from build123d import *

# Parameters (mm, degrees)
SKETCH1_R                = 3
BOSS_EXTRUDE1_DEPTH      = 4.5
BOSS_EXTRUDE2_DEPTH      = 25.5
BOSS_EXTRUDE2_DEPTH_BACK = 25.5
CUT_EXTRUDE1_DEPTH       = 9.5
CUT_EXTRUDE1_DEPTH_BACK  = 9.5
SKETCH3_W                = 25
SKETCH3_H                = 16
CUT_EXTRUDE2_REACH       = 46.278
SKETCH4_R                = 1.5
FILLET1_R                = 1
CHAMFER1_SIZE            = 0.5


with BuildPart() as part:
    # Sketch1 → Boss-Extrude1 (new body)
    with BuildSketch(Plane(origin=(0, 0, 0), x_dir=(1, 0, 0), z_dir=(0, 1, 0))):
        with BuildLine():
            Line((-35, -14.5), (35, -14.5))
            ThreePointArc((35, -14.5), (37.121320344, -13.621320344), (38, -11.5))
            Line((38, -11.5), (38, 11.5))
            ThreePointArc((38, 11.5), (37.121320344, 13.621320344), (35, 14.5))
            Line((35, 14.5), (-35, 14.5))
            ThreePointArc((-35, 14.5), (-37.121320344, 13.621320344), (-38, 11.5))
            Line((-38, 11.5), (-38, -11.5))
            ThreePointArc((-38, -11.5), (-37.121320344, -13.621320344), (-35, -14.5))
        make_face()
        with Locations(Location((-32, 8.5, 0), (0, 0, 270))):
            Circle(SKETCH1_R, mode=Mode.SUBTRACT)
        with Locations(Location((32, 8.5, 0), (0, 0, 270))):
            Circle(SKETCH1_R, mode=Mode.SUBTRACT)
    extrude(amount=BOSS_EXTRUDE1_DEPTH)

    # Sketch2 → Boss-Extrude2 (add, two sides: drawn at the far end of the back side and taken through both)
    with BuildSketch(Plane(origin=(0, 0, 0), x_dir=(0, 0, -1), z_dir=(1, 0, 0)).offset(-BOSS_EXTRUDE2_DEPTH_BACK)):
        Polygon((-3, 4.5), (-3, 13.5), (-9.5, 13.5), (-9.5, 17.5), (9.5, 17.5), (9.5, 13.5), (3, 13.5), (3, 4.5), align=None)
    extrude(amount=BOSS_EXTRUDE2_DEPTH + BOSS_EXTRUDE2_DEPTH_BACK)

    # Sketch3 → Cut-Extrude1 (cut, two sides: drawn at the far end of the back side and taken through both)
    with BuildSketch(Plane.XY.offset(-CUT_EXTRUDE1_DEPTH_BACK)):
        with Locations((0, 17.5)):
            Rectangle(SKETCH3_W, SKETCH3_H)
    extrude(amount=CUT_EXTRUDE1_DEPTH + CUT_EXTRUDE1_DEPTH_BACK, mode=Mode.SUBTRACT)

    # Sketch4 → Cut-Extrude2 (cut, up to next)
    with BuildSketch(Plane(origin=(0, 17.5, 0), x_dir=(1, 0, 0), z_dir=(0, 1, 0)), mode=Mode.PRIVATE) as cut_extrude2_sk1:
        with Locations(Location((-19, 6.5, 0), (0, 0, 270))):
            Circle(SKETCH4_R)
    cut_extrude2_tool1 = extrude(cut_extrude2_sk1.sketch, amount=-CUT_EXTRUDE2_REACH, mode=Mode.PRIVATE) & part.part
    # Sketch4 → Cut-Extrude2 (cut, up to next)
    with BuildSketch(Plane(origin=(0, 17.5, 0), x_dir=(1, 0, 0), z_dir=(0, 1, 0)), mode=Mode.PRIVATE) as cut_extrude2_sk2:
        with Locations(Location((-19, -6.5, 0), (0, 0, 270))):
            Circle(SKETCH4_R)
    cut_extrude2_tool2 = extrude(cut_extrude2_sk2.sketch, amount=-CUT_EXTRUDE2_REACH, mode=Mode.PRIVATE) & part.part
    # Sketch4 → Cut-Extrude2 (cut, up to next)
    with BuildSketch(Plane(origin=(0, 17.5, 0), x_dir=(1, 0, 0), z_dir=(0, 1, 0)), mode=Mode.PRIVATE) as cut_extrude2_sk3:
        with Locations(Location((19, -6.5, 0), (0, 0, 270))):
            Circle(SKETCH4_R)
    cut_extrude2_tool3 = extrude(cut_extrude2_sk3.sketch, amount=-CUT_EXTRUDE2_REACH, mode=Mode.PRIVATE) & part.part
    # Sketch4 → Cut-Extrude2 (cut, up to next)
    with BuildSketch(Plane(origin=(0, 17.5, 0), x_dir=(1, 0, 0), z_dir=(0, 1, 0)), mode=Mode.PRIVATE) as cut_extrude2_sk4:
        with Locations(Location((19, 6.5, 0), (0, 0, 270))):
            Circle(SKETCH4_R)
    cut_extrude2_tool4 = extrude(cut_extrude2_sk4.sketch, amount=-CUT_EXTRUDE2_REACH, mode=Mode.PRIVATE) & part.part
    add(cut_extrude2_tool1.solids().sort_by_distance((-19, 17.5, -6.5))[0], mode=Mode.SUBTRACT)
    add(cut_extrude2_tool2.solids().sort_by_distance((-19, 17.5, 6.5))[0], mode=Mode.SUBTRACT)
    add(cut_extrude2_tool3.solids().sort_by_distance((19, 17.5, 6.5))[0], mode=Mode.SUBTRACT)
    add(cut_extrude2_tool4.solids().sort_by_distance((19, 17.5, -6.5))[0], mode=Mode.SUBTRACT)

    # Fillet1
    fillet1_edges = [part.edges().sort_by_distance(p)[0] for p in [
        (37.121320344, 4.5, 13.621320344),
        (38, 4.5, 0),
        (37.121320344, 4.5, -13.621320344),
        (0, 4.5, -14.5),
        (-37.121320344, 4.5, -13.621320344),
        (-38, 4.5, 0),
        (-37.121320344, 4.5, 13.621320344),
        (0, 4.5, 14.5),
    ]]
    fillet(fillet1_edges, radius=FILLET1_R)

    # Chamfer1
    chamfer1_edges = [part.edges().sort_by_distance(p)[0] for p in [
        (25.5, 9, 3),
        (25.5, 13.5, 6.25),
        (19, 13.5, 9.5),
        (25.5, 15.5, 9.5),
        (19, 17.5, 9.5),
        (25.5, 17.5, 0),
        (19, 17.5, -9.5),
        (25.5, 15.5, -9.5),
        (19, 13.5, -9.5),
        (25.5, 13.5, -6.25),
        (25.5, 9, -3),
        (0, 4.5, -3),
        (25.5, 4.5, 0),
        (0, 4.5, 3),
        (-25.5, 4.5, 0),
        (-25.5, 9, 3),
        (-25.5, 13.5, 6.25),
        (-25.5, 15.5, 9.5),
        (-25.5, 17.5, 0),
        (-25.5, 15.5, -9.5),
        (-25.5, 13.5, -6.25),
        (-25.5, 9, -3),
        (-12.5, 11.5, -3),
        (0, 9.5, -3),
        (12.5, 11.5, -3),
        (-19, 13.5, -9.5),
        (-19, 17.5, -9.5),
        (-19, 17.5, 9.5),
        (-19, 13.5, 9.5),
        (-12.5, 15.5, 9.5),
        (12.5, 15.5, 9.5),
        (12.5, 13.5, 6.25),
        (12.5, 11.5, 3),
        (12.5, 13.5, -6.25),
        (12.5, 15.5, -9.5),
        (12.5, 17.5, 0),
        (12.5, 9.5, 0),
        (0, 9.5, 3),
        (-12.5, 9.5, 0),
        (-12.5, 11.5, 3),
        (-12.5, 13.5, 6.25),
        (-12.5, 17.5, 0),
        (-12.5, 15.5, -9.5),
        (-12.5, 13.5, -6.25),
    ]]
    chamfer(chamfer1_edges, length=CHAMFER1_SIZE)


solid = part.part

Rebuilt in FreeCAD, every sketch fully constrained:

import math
import FreeCAD as App
import Part
import Sketcher
from FreeCAD import Vector


def edges_at(feature, points):
    """Names of the edges that pass closest to the given points."""
    edges = feature.Shape.Edges
    near = lambda p: min(range(len(edges)), key=lambda i: edges[i].distToShape(Part.Vertex(*p))[0])
    return sorted({f"Edge{near(p) + 1}" for p in points})


def add_polygon(sketch, points):
    """Adds a closed chain of lines whose ends are joined by coincident constraints."""
    first, n = sketch.GeometryCount, len(points)
    for a, b in zip(points, points[1:] + points[:1]):
        sketch.addGeometry(Part.LineSegment(App.Vector(*a, 0), App.Vector(*b, 0)), False)
    for i in range(n):
        sketch.addConstraint(Sketcher.Constraint("Coincident", first + i, 2, first + (i + 1) % n, 1))

doc = App.newDocument("Part")
body = doc.addObject("PartDesign::Body", "Body")

# Sketch on XZ plane
sketch1 = doc.addObject("Sketcher::SketchObject", "Sketch")
body.addObject(sketch1)
sketch1.AttachmentSupport = (doc.XZ_Plane, [""])
sketch1.MapMode = "FlatFace"
sketch1.addGeometry(Part.LineSegment(Vector(-35, 14.5, 0), Vector(35, 14.5, 0)), False)
sketch1.addGeometry(Part.ArcOfCircle(Part.Circle(Vector(35, 11.5, 0), Vector(0, 0, 1), 3), math.radians(0), math.radians(90)), False)
sketch1.addGeometry(Part.LineSegment(Vector(38, 11.5, 0), Vector(38, -11.5, 0)), False)
sketch1.addGeometry(Part.ArcOfCircle(Part.Circle(Vector(35, -11.5, 0), Vector(0, 0, 1), 3), math.radians(-90), math.radians(0)), False)
sketch1.addGeometry(Part.LineSegment(Vector(35, -14.5, 0), Vector(-35, -14.5, 0)), False)
sketch1.addGeometry(Part.ArcOfCircle(Part.Circle(Vector(-35, -11.5, 0), Vector(0, 0, 1), 3), math.radians(180), math.radians(270)), False)
sketch1.addGeometry(Part.LineSegment(Vector(-38, -11.5, 0), Vector(-38, 11.5, 0)), False)
sketch1.addGeometry(Part.ArcOfCircle(Part.Circle(Vector(-35, 11.5, 0), Vector(0, 0, 1), 3), math.radians(90), math.radians(180)), False)
sketch1.addGeometry(Part.Circle(Vector(-32, -8.5, 0), Vector(0, 0, 1), 3), False)
sketch1.addGeometry(Part.Circle(Vector(32, -8.5, 0), Vector(0, 0, 1), 3), False)
sketch1.addConstraint(Sketcher.Constraint("Tangent", 0, 2, 1, 2))
sketch1.addConstraint(Sketcher.Constraint("Tangent", 1, 1, 2, 1))
sketch1.addConstraint(Sketcher.Constraint("Tangent", 2, 2, 3, 2))
sketch1.addConstraint(Sketcher.Constraint("Tangent", 3, 1, 4, 1))
sketch1.addConstraint(Sketcher.Constraint("Tangent", 4, 2, 5, 2))
sketch1.addConstraint(Sketcher.Constraint("Tangent", 5, 1, 6, 1))
sketch1.addConstraint(Sketcher.Constraint("Tangent", 6, 2, 7, 2))
sketch1.addConstraint(Sketcher.Constraint("Tangent", 7, 1, 0, 1))
sketch1.addConstraint(Sketcher.Constraint("Horizontal", 0))
sketch1.addConstraint(Sketcher.Constraint("Vertical", 2))
sketch1.addConstraint(Sketcher.Constraint("Horizontal", 4))
sketch1.addConstraint(Sketcher.Constraint("Vertical", 6))
sketch1.addConstraint(Sketcher.Constraint("Equal", 1, 3))
sketch1.addConstraint(Sketcher.Constraint("Equal", 3, 5))
sketch1.addConstraint(Sketcher.Constraint("Equal", 5, 7))
sketch1.addConstraint(Sketcher.Constraint("Equal", 7, 8))
sketch1.addConstraint(Sketcher.Constraint("Equal", 8, 9))
sketch1.addConstraint(Sketcher.Constraint("Symmetric", 1, 3, 5, 3, -1, 1))
sketch1.addConstraint(Sketcher.Constraint("Symmetric", 8, 3, 9, 3, -2))
sketch1.addConstraint(Sketcher.Constraint("Diameter", 8, 6.0))
sketch1.addConstraint(Sketcher.Constraint("DistanceX", 0, 1, 0, 2, 70.0))
sketch1.addConstraint(Sketcher.Constraint("DistanceY", 2, 2, 2, 1, 23.0))
sketch1.addConstraint(Sketcher.Constraint("DistanceX", 8, 3, -1, 1, 32.0))
sketch1.addConstraint(Sketcher.Constraint("DistanceY", 5, 3, 8, 3, 3.0))
pad1 = doc.addObject("PartDesign::Pad", "Pad")
body.addObject(pad1)
pad1.Profile = sketch1
pad1.Length = 4.5
pad1.Reversed = True

# Sketch on YZ plane
sketch2 = doc.addObject("Sketcher::SketchObject", "Sketch001")
body.addObject(sketch2)
sketch2.AttachmentSupport = (doc.YZ_Plane, [""])
sketch2.MapMode = "FlatFace"
add_polygon(sketch2, [(13.5, 3), (4.5, 3), (4.5, -3), (13.5, -3), (13.5, -9.5), (17.5, -9.5), (17.5, 9.5), (13.5, 9.5)])  # lines 0-7
sketch2.addConstraint(Sketcher.Constraint("Horizontal", 0))
sketch2.addConstraint(Sketcher.Constraint("Vertical", 1))
sketch2.addConstraint(Sketcher.Constraint("Horizontal", 2))
sketch2.addConstraint(Sketcher.Constraint("Vertical", 3))
sketch2.addConstraint(Sketcher.Constraint("Horizontal", 4))
sketch2.addConstraint(Sketcher.Constraint("Vertical", 5))
sketch2.addConstraint(Sketcher.Constraint("Horizontal", 6))
sketch2.addConstraint(Sketcher.Constraint("Vertical", 7))
sketch2.addConstraint(Sketcher.Constraint("Symmetric", 3, 2, 6, 2, -1))
sketch2.addConstraint(Sketcher.Constraint("Equal", 3, 7))
sketch2.addConstraint(Sketcher.Constraint("DistanceX", 0, 2, 0, 1, 9.0))
sketch2.addConstraint(Sketcher.Constraint("DistanceX", 4, 1, 4, 2, 4.0))
sketch2.addConstraint(Sketcher.Constraint("DistanceY", 1, 2, 1, 1, 6.0))
sketch2.addConstraint(Sketcher.Constraint("DistanceY", 5, 1, 5, 2, 19.0))
sketch2.addConstraint(Sketcher.Constraint("DistanceX", -1, 1, 0, 2, 4.5))
pad2 = doc.addObject("PartDesign::Pad", "Pad001")
body.addObject(pad2)
pad2.Profile = sketch2
pad2.Type = "TwoLengths"
pad2.Length = 25.5
pad2.Length2 = 25.5

# Sketch on XY plane
sketch3 = doc.addObject("Sketcher::SketchObject", "Sketch002")
body.addObject(sketch3)
sketch3.AttachmentSupport = (doc.XY_Plane, [""])
sketch3.MapMode = "FlatFace"
add_polygon(sketch3, [(-12, 26), (-12, 10), (12, 10), (12, 26)])  # lines 0-3
sketch3.addConstraint(Sketcher.Constraint("Vertical", 0))
sketch3.addConstraint(Sketcher.Constraint("Horizontal", 1))
sketch3.addConstraint(Sketcher.Constraint("Vertical", 2))
sketch3.addConstraint(Sketcher.Constraint("Horizontal", 3))
sketch3.addConstraint(Sketcher.Constraint("DistanceX", 1, 1, 1, 2, 25.0))
sketch3.addConstraint(Sketcher.Constraint("DistanceY", 0, 2, 0, 1, 16.0))
sketch3.addConstraint(Sketcher.Constraint("DistanceX", 0, 2, -1, 1, 12.5))
sketch3.addConstraint(Sketcher.Constraint("DistanceY", -1, 1, 0, 2, 9.5))
pocket1 = doc.addObject("PartDesign::Pocket", "Pocket")
body.addObject(pocket1)
pocket1.Profile = sketch3
pocket1.Type = "ThroughAll"
pocket1.Midplane = True

# Sketch on XZ plane
sketch4 = doc.addObject("Sketcher::SketchObject", "Sketch003")
body.addObject(sketch4)
sketch4.AttachmentSupport = (doc.XZ_Plane, [""])
sketch4.MapMode = "FlatFace"
sketch4.AttachmentOffset = App.Placement(Vector(0, 0, -17.5), App.Rotation())
sketch4.addGeometry(Part.Circle(Vector(-19, -6.5, 0), Vector(0, 0, 1), 1.5), False)
sketch4.addConstraint(Sketcher.Constraint("Diameter", 0, 3.0))
sketch4.addConstraint(Sketcher.Constraint("DistanceX", 0, 3, -1, 1, 19.0))
sketch4.addConstraint(Sketcher.Constraint("DistanceY", 0, 3, -1, 1, 6.5))
pocket2 = doc.addObject("PartDesign::Pocket", "Pocket001")
body.addObject(pocket2)
pocket2.Profile = sketch4
pocket2.Type = "UpToFirst"
pocket2.Reversed = True

# Sketch on XZ plane
sketch5 = doc.addObject("Sketcher::SketchObject", "Sketch004")
body.addObject(sketch5)
sketch5.AttachmentSupport = (doc.XZ_Plane, [""])
sketch5.MapMode = "FlatFace"
sketch5.AttachmentOffset = App.Placement(Vector(0, 0, -17.5), App.Rotation())
sketch5.addGeometry(Part.Circle(Vector(-19, 6.5, 0), Vector(0, 0, 1), 1.5), False)
sketch5.addConstraint(Sketcher.Constraint("Diameter", 0, 3.0))
sketch5.addConstraint(Sketcher.Constraint("DistanceX", 0, 3, -1, 1, 19.0))
sketch5.addConstraint(Sketcher.Constraint("DistanceY", -1, 1, 0, 3, 6.5))
pocket3 = doc.addObject("PartDesign::Pocket", "Pocket002")
body.addObject(pocket3)
pocket3.Profile = sketch5
pocket3.Type = "UpToFirst"
pocket3.Reversed = True

# Sketch on XZ plane
sketch6 = doc.addObject("Sketcher::SketchObject", "Sketch005")
body.addObject(sketch6)
sketch6.AttachmentSupport = (doc.XZ_Plane, [""])
sketch6.MapMode = "FlatFace"
sketch6.AttachmentOffset = App.Placement(Vector(0, 0, -17.5), App.Rotation())
sketch6.addGeometry(Part.Circle(Vector(19, 6.5, 0), Vector(0, 0, 1), 1.5), False)
sketch6.addConstraint(Sketcher.Constraint("Diameter", 0, 3.0))
sketch6.addConstraint(Sketcher.Constraint("DistanceX", -1, 1, 0, 3, 19.0))
sketch6.addConstraint(Sketcher.Constraint("DistanceY", -1, 1, 0, 3, 6.5))
pocket4 = doc.addObject("PartDesign::Pocket", "Pocket003")
body.addObject(pocket4)
pocket4.Profile = sketch6
pocket4.Type = "UpToFirst"
pocket4.Reversed = True

# Sketch on XZ plane
sketch7 = doc.addObject("Sketcher::SketchObject", "Sketch006")
body.addObject(sketch7)
sketch7.AttachmentSupport = (doc.XZ_Plane, [""])
sketch7.MapMode = "FlatFace"
sketch7.AttachmentOffset = App.Placement(Vector(0, 0, -17.5), App.Rotation())
sketch7.addGeometry(Part.Circle(Vector(19, -6.5, 0), Vector(0, 0, 1), 1.5), False)
sketch7.addConstraint(Sketcher.Constraint("Diameter", 0, 3.0))
sketch7.addConstraint(Sketcher.Constraint("DistanceX", -1, 1, 0, 3, 19.0))
sketch7.addConstraint(Sketcher.Constraint("DistanceY", 0, 3, -1, 1, 6.5))
pocket5 = doc.addObject("PartDesign::Pocket", "Pocket004")
body.addObject(pocket5)
pocket5.Profile = sketch7
pocket5.Type = "UpToFirst"
pocket5.Reversed = True
doc.recompute()

fillet = doc.addObject("PartDesign::Fillet", "Fillet")
body.addObject(fillet)
fillet.Base = (pocket5, edges_at(pocket5, [
    (37.121, 4.5, 13.621),
    (38, 4.5, 0),
    (37.121, 4.5, -13.621),
    (0, 4.5, -14.5),
    (-37.121, 4.5, -13.621),
    (-38, 4.5, 0),
    (-37.121, 4.5, 13.621),
    (0, 4.5, 14.5),
]))
fillet.Radius = 1
doc.recompute()

chamfer = doc.addObject("PartDesign::Chamfer", "Chamfer")
body.addObject(chamfer)
chamfer.Base = (fillet, edges_at(fillet, [
    (25.5, 9, 3),
    (25.5, 13.5, 6.25),
    (19, 13.5, 9.5),
    (25.5, 15.5, 9.5),
    (19, 17.5, 9.5),
    (25.5, 17.5, 0),
    (19, 17.5, -9.5),
    (25.5, 15.5, -9.5),
    (19, 13.5, -9.5),
    (25.5, 13.5, -6.25),
    (25.5, 9, -3),
    (0, 4.5, -3),
    (25.5, 4.5, 0),
    (0, 4.5, 3),
    (-25.5, 4.5, 0),
    (-25.5, 9, 3),
    (-25.5, 13.5, 6.25),
    (-25.5, 15.5, 9.5),
    (-25.5, 17.5, 0),
    (-25.5, 15.5, -9.5),
    (-25.5, 13.5, -6.25),
    (-25.5, 9, -3),
    (-12.5, 11.5, -3),
    (0, 9.5, -3),
    (12.5, 11.5, -3),
    (-19, 13.5, -9.5),
    (-19, 17.5, -9.5),
    (-19, 17.5, 9.5),
    (-19, 13.5, 9.5),
    (-12.5, 15.5, 9.5),
    (12.5, 15.5, 9.5),
    (12.5, 13.5, 6.25),
    (12.5, 11.5, 3),
    (12.5, 13.5, -6.25),
    (12.5, 15.5, -9.5),
    (12.5, 17.5, 0),
    (12.5, 9.5, 0),
    (0, 9.5, 3),
    (-12.5, 9.5, 0),
    (-12.5, 11.5, 3),
    (-12.5, 13.5, 6.25),
    (-12.5, 17.5, 0),
    (-12.5, 15.5, -9.5),
    (-12.5, 13.5, -6.25),
]))
chamfer.Size = 0.5

doc.recompute()
